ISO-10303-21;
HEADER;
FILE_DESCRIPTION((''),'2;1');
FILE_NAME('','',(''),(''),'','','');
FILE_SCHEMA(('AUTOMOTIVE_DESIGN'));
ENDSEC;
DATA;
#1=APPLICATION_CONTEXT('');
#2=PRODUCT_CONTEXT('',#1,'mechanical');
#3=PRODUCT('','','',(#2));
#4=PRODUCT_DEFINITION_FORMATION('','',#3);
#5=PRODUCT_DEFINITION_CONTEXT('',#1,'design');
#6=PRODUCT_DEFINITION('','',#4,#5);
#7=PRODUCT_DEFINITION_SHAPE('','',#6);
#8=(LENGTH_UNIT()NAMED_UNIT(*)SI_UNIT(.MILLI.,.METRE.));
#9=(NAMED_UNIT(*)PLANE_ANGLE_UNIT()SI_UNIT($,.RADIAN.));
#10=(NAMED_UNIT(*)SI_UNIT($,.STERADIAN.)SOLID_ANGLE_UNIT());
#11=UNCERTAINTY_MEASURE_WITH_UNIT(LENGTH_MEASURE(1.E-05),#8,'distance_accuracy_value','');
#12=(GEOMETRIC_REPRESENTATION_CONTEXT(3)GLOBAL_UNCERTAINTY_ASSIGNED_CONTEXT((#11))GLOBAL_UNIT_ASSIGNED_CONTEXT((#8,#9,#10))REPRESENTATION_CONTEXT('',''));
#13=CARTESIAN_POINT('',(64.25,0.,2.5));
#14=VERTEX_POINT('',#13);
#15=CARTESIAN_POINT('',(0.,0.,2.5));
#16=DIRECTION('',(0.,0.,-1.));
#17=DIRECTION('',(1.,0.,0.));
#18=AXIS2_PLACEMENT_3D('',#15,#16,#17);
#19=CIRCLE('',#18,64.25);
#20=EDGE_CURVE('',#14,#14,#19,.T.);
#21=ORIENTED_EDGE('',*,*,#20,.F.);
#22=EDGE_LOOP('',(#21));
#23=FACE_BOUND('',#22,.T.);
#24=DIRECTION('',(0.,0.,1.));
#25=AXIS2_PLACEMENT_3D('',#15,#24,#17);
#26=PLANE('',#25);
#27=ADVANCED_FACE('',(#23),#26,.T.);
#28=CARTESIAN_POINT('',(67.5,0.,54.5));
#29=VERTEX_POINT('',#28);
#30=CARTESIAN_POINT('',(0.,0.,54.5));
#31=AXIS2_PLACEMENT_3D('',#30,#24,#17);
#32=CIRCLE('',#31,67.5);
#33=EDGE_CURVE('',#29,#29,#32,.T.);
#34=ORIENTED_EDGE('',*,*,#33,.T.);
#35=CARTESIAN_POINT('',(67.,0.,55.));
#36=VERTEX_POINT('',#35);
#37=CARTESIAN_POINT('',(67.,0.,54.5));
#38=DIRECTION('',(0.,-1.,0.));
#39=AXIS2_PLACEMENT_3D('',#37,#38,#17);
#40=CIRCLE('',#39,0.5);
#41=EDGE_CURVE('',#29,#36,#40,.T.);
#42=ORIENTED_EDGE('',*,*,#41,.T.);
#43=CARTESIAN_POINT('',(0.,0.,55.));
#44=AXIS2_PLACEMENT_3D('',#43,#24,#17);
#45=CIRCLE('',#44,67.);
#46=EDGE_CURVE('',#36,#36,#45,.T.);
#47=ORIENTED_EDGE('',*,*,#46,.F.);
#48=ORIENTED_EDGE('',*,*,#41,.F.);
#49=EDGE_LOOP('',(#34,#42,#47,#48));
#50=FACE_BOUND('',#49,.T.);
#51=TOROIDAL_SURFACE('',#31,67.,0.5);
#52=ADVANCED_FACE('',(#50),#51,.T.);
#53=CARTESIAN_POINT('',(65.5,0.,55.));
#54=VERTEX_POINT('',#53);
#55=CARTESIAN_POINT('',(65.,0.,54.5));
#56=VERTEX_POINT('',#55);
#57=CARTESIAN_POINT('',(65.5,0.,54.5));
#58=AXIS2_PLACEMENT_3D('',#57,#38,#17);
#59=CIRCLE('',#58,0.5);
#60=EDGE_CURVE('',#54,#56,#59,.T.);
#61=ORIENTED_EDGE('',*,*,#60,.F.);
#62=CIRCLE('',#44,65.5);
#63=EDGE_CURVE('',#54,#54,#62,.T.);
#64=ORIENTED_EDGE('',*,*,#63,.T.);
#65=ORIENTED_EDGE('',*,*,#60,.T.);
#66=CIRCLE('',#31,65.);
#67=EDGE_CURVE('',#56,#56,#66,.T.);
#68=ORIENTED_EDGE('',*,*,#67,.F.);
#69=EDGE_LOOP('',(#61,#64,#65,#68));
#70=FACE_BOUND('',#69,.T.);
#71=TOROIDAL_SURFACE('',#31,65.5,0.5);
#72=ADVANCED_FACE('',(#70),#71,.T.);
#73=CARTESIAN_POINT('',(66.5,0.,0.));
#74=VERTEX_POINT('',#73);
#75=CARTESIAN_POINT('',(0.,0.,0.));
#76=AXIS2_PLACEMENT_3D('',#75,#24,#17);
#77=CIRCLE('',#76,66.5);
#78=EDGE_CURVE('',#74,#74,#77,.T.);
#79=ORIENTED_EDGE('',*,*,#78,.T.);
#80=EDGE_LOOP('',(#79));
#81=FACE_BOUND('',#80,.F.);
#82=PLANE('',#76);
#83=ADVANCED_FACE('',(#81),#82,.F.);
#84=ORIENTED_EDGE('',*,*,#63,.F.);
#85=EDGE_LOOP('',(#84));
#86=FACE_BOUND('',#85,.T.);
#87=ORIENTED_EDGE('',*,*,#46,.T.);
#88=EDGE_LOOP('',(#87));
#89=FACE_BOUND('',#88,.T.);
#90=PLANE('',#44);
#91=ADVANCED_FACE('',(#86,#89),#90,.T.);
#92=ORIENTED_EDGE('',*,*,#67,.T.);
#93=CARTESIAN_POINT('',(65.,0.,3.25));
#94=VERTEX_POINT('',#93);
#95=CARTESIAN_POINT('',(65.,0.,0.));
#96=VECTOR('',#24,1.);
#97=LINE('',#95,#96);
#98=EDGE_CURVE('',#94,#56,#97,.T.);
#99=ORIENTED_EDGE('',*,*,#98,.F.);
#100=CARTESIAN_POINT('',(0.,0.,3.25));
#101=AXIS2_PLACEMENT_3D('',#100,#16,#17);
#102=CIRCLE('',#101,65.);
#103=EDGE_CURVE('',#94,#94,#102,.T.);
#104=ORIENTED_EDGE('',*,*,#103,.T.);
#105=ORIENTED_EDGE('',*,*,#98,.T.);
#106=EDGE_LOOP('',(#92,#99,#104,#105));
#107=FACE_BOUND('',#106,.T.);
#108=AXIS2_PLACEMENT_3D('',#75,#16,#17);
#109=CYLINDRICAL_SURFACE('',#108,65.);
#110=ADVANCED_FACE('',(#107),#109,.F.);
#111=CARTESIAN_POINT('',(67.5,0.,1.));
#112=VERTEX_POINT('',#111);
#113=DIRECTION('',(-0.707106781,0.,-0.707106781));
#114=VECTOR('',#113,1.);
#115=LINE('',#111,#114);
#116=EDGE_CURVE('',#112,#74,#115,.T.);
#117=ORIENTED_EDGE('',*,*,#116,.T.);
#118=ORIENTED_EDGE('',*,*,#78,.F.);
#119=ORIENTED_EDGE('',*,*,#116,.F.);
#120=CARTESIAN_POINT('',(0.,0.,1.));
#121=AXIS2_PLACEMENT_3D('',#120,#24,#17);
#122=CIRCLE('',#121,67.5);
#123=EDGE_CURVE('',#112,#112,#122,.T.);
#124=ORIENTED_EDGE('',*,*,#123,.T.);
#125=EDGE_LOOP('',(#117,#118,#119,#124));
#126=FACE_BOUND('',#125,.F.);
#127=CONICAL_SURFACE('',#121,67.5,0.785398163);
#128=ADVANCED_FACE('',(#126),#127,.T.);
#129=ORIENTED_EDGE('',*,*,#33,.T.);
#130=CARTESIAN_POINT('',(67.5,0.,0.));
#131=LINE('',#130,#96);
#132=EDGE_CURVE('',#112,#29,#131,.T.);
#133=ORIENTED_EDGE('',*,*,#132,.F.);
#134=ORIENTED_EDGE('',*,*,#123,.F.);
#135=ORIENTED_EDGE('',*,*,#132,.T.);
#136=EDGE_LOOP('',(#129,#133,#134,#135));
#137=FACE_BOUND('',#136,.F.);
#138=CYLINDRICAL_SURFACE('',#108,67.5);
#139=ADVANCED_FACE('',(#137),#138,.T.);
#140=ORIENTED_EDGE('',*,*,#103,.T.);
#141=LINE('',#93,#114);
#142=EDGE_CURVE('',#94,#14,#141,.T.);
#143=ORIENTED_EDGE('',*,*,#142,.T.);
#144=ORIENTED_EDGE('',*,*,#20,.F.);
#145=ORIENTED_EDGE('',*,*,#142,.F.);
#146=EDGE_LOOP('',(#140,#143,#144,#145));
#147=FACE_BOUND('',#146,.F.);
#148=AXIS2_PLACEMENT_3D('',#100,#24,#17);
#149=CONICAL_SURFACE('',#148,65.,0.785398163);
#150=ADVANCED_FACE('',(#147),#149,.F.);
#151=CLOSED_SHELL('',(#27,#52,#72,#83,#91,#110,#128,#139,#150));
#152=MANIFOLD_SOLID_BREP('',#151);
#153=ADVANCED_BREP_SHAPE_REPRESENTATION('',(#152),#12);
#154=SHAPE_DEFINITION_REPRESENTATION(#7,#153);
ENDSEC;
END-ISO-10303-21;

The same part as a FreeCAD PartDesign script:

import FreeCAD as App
import Part
import Sketcher


def edges_at(feature, points):
    """Names of the edges that pass closest to the given points."""
    edges = feature.Shape.Edges
    near = lambda p: min(range(len(edges)), key=lambda i: edges[i].distToShape(Part.Vertex(*p))[0])
    return sorted({f"Edge{near(p) + 1}" for p in points})


def faces_at(feature, points):
    """Names of the faces that lie closest to the given points."""
    faces = feature.Shape.Faces
    near = lambda p: min(range(len(faces)), key=lambda i: faces[i].distToShape(Part.Vertex(*p))[0])
    return sorted({f"Face{near(p) + 1}" for p in points})

doc = App.newDocument("Part")
body = doc.addObject("PartDesign::Body", "Body")

# Sketch on XY plane
sketch1 = body.newObject("Sketcher::SketchObject", "Sketch")
sketch1.AttachmentSupport = (doc.getObject("XY_Plane"), [""])
sketch1.MapMode = "FlatFace"
sketch1.addGeometry(Part.Circle(App.Vector(0, 0, 0), App.Vector(0, 0, 1), 68), False)
sketch1.addConstraint([
    Sketcher.Constraint("Coincident", 0, 3, -1, 1),
    Sketcher.Constraint("Diameter", 0, 135.0),
])
pad1 = body.newObject("PartDesign::Pad", "Pad")
pad1.Profile = sketch1
pad1.Length = 55
doc.recompute()

thickness = body.newObject("PartDesign::Thickness", "Thickness")
thickness.Base = (pad1, faces_at(pad1, [(0, 0, 55)]))
thickness.Value = 2.5
thickness.Reversed = True
thickness.Join = "Arc"
doc.recompute()

fillet = body.newObject("PartDesign::Fillet", "Fillet")
fillet.Base = (thickness, edges_at(thickness, [(-67.5, 0, 55), (-65, 0, 55)]))
fillet.Radius = 0.5
doc.recompute()

chamfer = body.newObject("PartDesign::Chamfer", "Chamfer")
chamfer.Base = (fillet, edges_at(fillet, [(-67.5, 0, 0)]))
chamfer.Size = 1
doc.recompute()

chamfer2 = body.newObject("PartDesign::Chamfer", "Chamfer001")
chamfer2.Base = (chamfer, edges_at(chamfer, [(-65, 0, 2.5)]))
chamfer2.Size = 0.75

doc.recompute()
